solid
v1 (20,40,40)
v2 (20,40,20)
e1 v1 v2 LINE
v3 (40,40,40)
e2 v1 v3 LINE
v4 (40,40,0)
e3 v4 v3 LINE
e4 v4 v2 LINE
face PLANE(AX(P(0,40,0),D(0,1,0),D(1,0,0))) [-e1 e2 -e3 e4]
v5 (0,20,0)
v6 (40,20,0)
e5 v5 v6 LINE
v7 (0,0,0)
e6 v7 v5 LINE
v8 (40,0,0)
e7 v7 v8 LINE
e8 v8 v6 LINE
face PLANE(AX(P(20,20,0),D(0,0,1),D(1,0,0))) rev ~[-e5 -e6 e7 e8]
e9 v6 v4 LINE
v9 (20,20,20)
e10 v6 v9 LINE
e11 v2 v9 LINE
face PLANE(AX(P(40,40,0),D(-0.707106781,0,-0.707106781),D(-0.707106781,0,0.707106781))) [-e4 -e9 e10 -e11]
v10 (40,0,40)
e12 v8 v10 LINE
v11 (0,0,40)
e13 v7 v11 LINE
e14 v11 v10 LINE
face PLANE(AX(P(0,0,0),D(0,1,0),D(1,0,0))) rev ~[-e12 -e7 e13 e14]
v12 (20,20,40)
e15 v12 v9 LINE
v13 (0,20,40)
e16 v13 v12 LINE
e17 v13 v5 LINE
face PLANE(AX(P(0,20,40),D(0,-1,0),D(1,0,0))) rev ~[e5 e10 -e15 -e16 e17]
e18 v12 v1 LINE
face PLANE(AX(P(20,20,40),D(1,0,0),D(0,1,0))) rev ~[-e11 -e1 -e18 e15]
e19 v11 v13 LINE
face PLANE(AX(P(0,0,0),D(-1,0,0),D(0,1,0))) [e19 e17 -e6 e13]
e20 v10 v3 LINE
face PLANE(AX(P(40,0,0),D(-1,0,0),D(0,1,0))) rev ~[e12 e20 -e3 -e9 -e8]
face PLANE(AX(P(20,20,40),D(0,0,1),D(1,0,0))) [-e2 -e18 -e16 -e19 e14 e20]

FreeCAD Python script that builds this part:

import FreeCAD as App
import Part
import Sketcher

V = App.Vector

doc = App.newDocument("Part")
params = doc.addObject("Spreadsheet::Sheet", "Params")
for row, (alias, value) in enumerate([
    ("sketch1_width", "40 mm"),
    ("pad1_length", "40 mm"),
    ("sketch2_width", "20 mm"),
    ("pocket1_length", "40 mm"),
    ("sketch3_width", "20 mm"),
    ("pocket2_length", "20 mm"),
], start=1):
    params.set(f"A{row}", alias)
    params.set(f"B{row}", "=" + value)
    params.setAlias(f"B{row}", alias)

body = doc.addObject("PartDesign::Body", "Body")

# Sketch on XY plane
sketch1 = body.newObject("Sketcher::SketchObject", "Sketch")
sketch1.AttachmentSupport = (doc.getObject("XY_Plane"), [""])
sketch1.MapMode = "FlatFace"
sketch1.addGeometry(Part.LineSegment(V(0, 40, 0), V(0, 0, 0)), False)
sketch1.addGeometry(Part.LineSegment(V(0, 0, 0), V(40, 0, 0)), False)
sketch1.addGeometry(Part.LineSegment(V(40, 0, 0), V(40, 40, 0)), False)
sketch1.addGeometry(Part.LineSegment(V(40, 40, 0), V(0, 40, 0)), False)
sketch1.addConstraint(Sketcher.Constraint("Coincident", 0, 2, 1, 1))
sketch1.addConstraint(Sketcher.Constraint("Coincident", 1, 2, 2, 1))
sketch1.addConstraint(Sketcher.Constraint("Coincident", 2, 2, 3, 1))
sketch1.addConstraint(Sketcher.Constraint("Coincident", 3, 2, 0, 1))
sketch1.addConstraint(Sketcher.Constraint("Vertical", 0))
sketch1.addConstraint(Sketcher.Constraint("Horizontal", 1))
sketch1.addConstraint(Sketcher.Constraint("Vertical", 2))
sketch1.addConstraint(Sketcher.Constraint("Horizontal", 3))
sketch1.addConstraint(Sketcher.Constraint("Coincident", 0, 2, -1, 1))
sketch1.addConstraint(Sketcher.Constraint("Equal", 3, 0))
sketch1.addConstraint(Sketcher.Constraint("DistanceX", 1, 1, 1, 2, 40.0))
sketch1.setExpression("Constraints[10]", "Params.sketch1_width")
pad1 = body.newObject("PartDesign::Pad", "Pad")
pad1.Profile = sketch1
pad1.setExpression("Length", "Params.pad1_length")

# Sketch on XY plane
sketch2 = body.newObject("Sketcher::SketchObject", "Sketch001")
sketch2.AttachmentSupport = (doc.getObject("XY_Plane"), [""])
sketch2.MapMode = "FlatFace"
sketch2.AttachmentOffset = App.Placement(V(0, 0, 40), App.Rotation())
sketch2.addGeometry(Part.LineSegment(V(0, 40, 0), V(0, 20, 0)), False)
sketch2.addGeometry(Part.LineSegment(V(0, 20, 0), V(20, 20, 0)), False)
sketch2.addGeometry(Part.LineSegment(V(20, 20, 0), V(20, 40, 0)), False)
sketch2.addGeometry(Part.LineSegment(V(20, 40, 0), V(0, 40, 0)), False)
sketch2.addConstraint(Sketcher.Constraint("Coincident", 0, 2, 1, 1))
sketch2.addConstraint(Sketcher.Constraint("Coincident", 1, 2, 2, 1))
sketch2.addConstraint(Sketcher.Constraint("Coincident", 2, 2, 3, 1))
sketch2.addConstraint(Sketcher.Constraint("Coincident", 3, 2, 0, 1))
sketch2.addConstraint(Sketcher.Constraint("Vertical", 0))
sketch2.addConstraint(Sketcher.Constraint("Horizontal", 1))
sketch2.addConstraint(Sketcher.Constraint("Vertical", 2))
sketch2.addConstraint(Sketcher.Constraint("Horizontal", 3))
sketch2.addConstraint(Sketcher.Constraint("PointOnObject", 0, 2, -2))
sketch2.addConstraint(Sketcher.Constraint("Equal", 3, 0))
sketch2.addConstraint(Sketcher.Constraint("DistanceX", 1, 1, 1, 2, 20.0))
sketch2.addConstraint(Sketcher.Constraint("DistanceY", -1, 1, 0, 2, 20.0))
sketch2.setExpression("Constraints[10]", "Params.sketch2_width")
pocket1 = body.newObject("PartDesign::Pocket", "Pocket")
pocket1.Profile = sketch2
pocket1.setExpression("Length", "Params.pocket1_length")

# Sketch on XZ plane
sketch3 = body.newObject("Sketcher::SketchObject", "Sketch002")
sketch3.AttachmentSupport = (doc.getObject("XZ_Plane"), [""])
sketch3.MapMode = "FlatFace"
sketch3.AttachmentOffset = App.Placement(V(0, 0, -40), App.Rotation())
sketch3.addGeometry(Part.LineSegment(V(20, 20, 0), V(40, 0, 0)), False)
sketch3.addGeometry(Part.LineSegment(V(40, 0, 0), V(20, 0, 0)), False)
sketch3.addGeometry(Part.LineSegment(V(20, 0, 0), V(20, 20, 0)), False)
sketch3.addConstraint(Sketcher.Constraint("Coincident", 0, 2, 1, 1))
sketch3.addConstraint(Sketcher.Constraint("Coincident", 1, 2, 2, 1))
sketch3.addConstraint(Sketcher.Constraint("Coincident", 2, 2, 0, 1))
sketch3.addConstraint(Sketcher.Constraint("Horizontal", 1))
sketch3.addConstraint(Sketcher.Constraint("Vertical", 2))
sketch3.addConstraint(Sketcher.Constraint("PointOnObject", 0, 2, -1))
sketch3.addConstraint(Sketcher.Constraint("Equal", 1, 2))
sketch3.addConstraint(Sketcher.Constraint("DistanceX", 1, 2, 1, 1, 20.0))
sketch3.addConstraint(Sketcher.Constraint("DistanceX", -1, 1, 0, 2, 40.0))
sketch3.setExpression("Constraints[7]", "Params.sketch3_width")
pocket2 = body.newObject("PartDesign::Pocket", "Pocket001")
pocket2.Profile = sketch3
pocket2.setExpression("Length", "Params.pocket2_length")
pocket2.Reversed = True

doc.recompute()
